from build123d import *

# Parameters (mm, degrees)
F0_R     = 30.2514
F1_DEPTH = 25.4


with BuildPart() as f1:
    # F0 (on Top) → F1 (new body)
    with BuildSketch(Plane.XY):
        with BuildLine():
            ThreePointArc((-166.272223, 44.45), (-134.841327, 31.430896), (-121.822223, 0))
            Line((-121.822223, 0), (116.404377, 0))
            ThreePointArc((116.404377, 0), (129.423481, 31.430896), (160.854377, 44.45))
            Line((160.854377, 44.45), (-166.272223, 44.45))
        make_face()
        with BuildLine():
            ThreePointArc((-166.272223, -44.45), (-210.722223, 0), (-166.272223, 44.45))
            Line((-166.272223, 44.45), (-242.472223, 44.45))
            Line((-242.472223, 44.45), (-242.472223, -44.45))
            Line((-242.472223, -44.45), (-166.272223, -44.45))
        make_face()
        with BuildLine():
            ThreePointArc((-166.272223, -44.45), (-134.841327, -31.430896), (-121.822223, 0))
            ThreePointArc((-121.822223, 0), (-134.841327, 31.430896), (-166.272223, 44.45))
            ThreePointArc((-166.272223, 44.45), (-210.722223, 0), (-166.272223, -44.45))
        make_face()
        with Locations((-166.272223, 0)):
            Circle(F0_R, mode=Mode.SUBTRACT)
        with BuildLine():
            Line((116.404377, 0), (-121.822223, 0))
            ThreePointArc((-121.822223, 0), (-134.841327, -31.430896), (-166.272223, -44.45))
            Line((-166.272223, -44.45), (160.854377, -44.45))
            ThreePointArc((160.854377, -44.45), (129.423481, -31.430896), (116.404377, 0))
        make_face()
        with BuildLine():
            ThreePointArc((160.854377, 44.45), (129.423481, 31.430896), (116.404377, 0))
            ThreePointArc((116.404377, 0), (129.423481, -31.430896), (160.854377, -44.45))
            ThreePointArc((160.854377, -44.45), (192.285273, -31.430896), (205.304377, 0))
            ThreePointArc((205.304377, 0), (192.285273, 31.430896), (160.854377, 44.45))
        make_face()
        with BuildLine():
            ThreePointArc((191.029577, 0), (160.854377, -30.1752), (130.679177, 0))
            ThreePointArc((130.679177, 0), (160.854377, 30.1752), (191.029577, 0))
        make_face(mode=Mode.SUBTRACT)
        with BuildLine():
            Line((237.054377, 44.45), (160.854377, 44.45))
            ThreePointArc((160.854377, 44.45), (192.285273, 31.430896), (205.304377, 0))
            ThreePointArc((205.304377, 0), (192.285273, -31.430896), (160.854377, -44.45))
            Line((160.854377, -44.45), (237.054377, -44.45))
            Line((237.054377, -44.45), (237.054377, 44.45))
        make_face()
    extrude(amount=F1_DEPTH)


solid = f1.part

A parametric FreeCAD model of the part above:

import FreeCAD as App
import Part
import Sketcher
from FreeCAD import Vector
Q = App.Units.Quantity

doc = App.newDocument("Part")
params = doc.addObject("Spreadsheet::Sheet", "Params")
for row, (alias, value) in enumerate([
    ("sketch1_diameter", "2.376 in"),
    ("sketch1_diameter2", "2.382 in"),
    ("sketch1_height", "3.5 in"),
    ("sketch1_width", "18.879 in"),
    ("pad1_length", "1 in"),
], start=1):
    params.set(f"A{row}", alias)
    params.set(f"B{row}", "=" + value)
    params.setAlias(f"B{row}", alias)

body = doc.addObject("PartDesign::Body", "Body")

# Sketch on XY plane
sketch1 = body.newObject("Sketcher::SketchObject", "Sketch")
sketch1.AttachmentSupport = (doc.getObject("XY_Plane"), [""])
sketch1.MapMode = "FlatFace"
sketch1.addGeometry([
    Part.LineSegment(Vector(-242, 44, 0), Vector(-242, -44, 0)),  # 0
    Part.LineSegment(Vector(-242, -44, 0), Vector(237, -44, 0)),  # 1
    Part.LineSegment(Vector(237, -44, 0), Vector(237, 44, 0)),  # 2
    Part.LineSegment(Vector(237, 44, 0), Vector(-242, 44, 0)),  # 3
    Part.Circle(Vector(161, 0, 0), Vector(0, 0, 1), 30),  # 4
    Part.Circle(Vector(-166, 0, 0), Vector(0, 0, 1), 30),  # 5
], False)
sketch1.addConstraint([
    Sketcher.Constraint("Coincident", 0, 2, 1, 1),
    Sketcher.Constraint("Coincident", 1, 2, 2, 1),
    Sketcher.Constraint("Coincident", 2, 2, 3, 1),
    Sketcher.Constraint("Coincident", 3, 2, 0, 1),
    Sketcher.Constraint("Vertical", 0),
    Sketcher.Constraint("Horizontal", 1),
    Sketcher.Constraint("Vertical", 2),
    Sketcher.Constraint("Horizontal", 3),
    Sketcher.Constraint("PointOnObject", 4, 3, -1),
    Sketcher.Constraint("PointOnObject", 5, 3, -1),
    Sketcher.Constraint("Diameter", 4, Q("2.376 in")),
    Sketcher.Constraint("Diameter", 5, Q("2.382 in")),
    Sketcher.Constraint("DistanceY", 0, 2, 0, 1, Q("3.5 in")),
    Sketcher.Constraint("DistanceX", 0, 2, 5, 3, Q("3 in")),
    Sketcher.Constraint("DistanceX", 4, 3, 1, 2, Q("3 in")),
    Sketcher.Constraint("DistanceX", 1, 1, 1, 2, Q("18.879 in")),
    Sketcher.Constraint("DistanceY", 0, 2, -1, 1, Q("1.75 in")),
    Sketcher.Constraint("DistanceX", -1, 1, 4, 3, Q("160.854377 mm")),
])
sketch1.setExpression("Constraints[10]", "Params.sketch1_diameter")
sketch1.setExpression("Constraints[11]", "Params.sketch1_diameter2")
sketch1.setExpression("Constraints[12]", "Params.sketch1_height")
sketch1.setExpression("Constraints[15]", "Params.sketch1_width")
pad1 = body.newObject("PartDesign::Pad", "Pad")
pad1.Profile = sketch1
pad1.setExpression("Length", "Params.pad1_length")

doc.recompute()
